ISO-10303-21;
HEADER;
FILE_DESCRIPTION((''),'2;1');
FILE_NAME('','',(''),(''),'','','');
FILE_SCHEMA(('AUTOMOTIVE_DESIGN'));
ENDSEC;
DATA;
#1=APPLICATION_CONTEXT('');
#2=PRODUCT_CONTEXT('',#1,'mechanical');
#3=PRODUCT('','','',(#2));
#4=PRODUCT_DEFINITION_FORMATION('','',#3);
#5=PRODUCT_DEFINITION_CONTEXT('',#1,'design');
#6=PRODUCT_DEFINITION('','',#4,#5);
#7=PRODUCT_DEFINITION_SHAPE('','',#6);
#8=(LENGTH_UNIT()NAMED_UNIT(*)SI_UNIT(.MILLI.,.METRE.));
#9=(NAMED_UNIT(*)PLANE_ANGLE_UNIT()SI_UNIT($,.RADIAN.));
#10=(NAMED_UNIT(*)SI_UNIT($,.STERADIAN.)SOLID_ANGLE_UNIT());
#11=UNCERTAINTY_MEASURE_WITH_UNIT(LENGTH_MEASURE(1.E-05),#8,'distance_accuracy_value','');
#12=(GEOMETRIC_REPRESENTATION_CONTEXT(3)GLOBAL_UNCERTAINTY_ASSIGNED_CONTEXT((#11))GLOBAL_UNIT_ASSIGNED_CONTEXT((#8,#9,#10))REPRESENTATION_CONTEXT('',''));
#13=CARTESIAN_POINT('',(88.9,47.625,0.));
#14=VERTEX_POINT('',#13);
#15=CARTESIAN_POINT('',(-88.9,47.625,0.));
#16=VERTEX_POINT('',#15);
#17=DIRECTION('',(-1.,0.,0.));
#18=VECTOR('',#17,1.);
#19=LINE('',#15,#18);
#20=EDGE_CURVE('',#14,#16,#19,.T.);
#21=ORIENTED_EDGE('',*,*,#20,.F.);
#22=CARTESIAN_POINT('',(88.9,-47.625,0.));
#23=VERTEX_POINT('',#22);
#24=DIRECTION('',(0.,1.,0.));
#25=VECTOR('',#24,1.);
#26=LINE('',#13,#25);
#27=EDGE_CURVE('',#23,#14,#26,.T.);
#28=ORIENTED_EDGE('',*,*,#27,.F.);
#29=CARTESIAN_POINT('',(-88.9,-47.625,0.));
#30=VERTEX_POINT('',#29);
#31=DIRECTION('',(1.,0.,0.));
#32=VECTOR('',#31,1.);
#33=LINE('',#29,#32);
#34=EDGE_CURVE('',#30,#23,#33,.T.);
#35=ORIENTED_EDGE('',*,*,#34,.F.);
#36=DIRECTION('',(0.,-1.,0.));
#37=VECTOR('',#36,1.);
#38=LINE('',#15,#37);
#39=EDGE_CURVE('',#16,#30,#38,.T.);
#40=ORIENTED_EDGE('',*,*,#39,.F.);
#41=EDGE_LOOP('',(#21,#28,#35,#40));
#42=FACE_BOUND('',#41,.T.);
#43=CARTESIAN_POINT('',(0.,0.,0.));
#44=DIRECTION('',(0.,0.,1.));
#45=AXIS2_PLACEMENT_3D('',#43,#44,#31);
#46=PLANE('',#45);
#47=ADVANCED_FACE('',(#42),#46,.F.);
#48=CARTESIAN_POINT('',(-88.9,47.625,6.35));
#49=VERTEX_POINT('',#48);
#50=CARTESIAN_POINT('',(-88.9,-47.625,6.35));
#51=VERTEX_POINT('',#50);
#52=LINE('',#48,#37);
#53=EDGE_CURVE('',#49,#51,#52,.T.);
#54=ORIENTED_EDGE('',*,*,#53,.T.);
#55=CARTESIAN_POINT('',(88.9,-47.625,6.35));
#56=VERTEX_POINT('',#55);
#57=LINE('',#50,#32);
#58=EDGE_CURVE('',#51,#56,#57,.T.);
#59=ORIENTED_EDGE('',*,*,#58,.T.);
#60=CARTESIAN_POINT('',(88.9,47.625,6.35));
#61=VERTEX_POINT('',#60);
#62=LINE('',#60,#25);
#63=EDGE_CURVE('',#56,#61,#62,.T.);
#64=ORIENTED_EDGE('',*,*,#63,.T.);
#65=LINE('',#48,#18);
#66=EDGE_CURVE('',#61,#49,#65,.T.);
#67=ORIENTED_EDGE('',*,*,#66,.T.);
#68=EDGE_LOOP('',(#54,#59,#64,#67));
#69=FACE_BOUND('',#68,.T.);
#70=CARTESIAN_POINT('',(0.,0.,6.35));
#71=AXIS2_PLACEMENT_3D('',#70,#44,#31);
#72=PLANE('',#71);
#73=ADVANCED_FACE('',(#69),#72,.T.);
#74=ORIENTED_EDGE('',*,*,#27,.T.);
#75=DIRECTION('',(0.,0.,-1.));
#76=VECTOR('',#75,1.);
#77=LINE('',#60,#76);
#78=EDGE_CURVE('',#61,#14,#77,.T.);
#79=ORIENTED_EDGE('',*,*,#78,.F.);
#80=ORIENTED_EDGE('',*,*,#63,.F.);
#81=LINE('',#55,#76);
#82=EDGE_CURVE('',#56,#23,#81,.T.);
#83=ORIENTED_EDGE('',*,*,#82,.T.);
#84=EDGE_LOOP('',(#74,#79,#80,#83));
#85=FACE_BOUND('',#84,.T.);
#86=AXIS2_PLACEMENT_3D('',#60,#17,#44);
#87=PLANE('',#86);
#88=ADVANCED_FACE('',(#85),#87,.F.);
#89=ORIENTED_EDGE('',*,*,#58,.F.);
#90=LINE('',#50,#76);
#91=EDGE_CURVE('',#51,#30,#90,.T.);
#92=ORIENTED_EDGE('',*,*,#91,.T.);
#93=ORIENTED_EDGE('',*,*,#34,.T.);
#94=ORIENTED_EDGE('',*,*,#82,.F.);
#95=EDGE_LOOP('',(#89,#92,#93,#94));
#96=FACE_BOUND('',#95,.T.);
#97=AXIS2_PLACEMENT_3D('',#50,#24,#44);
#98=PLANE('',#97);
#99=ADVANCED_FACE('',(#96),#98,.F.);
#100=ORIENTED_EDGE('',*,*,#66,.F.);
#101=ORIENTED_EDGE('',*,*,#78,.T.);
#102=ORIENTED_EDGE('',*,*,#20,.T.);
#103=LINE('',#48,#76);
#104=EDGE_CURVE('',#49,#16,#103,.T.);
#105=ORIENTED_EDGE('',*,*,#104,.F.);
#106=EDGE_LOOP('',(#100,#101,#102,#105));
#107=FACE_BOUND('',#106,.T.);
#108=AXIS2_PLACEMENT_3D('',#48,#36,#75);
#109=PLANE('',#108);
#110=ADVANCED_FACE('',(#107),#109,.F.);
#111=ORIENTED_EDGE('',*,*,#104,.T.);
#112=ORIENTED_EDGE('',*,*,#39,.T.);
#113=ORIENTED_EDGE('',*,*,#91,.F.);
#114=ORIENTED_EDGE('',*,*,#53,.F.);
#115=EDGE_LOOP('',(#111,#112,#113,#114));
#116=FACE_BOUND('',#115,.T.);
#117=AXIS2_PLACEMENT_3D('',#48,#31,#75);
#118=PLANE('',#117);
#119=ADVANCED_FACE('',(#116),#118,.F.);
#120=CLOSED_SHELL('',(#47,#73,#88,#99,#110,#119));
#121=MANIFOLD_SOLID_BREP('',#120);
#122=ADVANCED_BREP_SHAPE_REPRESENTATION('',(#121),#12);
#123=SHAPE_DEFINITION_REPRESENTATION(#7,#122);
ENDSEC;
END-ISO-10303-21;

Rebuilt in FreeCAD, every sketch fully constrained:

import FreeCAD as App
import Part
import Sketcher
from FreeCAD import Vector
Q = App.Units.Quantity


def add_polygon(sketch, points):
    """Adds a closed chain of lines whose ends are joined by coincident constraints."""
    first, n = sketch.GeometryCount, len(points)
    for a, b in zip(points, points[1:] + points[:1]):
        sketch.addGeometry(Part.LineSegment(App.Vector(*a, 0), App.Vector(*b, 0)), False)
    for i in range(n):
        sketch.addConstraint(Sketcher.Constraint("Coincident", first + i, 2, first + (i + 1) % n, 1))

doc = App.newDocument("Part")
body = doc.addObject("PartDesign::Body", "Body")

sketch1 = doc.addObject("Sketcher::SketchObject", "Sketch")
body.addObject(sketch1)
sketch1.AttachmentSupport = (doc.XY_Plane, [""])
sketch1.MapMode = "FlatFace"
add_polygon(sketch1, [(-89, 48), (-89, -48), (89, -48), (89, 48)])
sketch1.addConstraint(Sketcher.Constraint("Vertical", 0))
sketch1.addConstraint(Sketcher.Constraint("Horizontal", 1))
sketch1.addConstraint(Sketcher.Constraint("Vertical", 2))
sketch1.addConstraint(Sketcher.Constraint("Horizontal", 3))
sketch1.addConstraint(Sketcher.Constraint("Symmetric", 0, 2, 2, 2, -1, 1))
sketch1.addConstraint(Sketcher.Constraint("DistanceX", 1, 1, 1, 2, Q("7 in")))
sketch1.addConstraint(Sketcher.Constraint("DistanceY", 0, 2, 0, 1, Q("3.75 in")))
pad1 = doc.addObject("PartDesign::Pad", "Pad")
body.addObject(pad1)
pad1.Profile = sketch1
pad1.Length = Q("0.25 in")

doc.recompute()
